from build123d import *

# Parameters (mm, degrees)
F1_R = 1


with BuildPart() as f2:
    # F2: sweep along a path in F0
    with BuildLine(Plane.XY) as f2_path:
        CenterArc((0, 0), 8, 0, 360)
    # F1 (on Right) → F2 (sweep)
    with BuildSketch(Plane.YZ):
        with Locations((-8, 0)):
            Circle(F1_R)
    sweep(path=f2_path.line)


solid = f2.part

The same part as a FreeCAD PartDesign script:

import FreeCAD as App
import Part
import Sketcher

V = App.Vector
Q = App.Units.Quantity

doc = App.newDocument("Part")
params = doc.addObject("Spreadsheet::Sheet", "Params")
for row, (alias, value) in enumerate([
    ("sketch1_diameter", "2 mm"),
    ("sketch2_diameter", "16 mm"),
], start=1):
    params.set(f"A{row}", alias)
    params.set(f"B{row}", "=" + value)
    params.setAlias(f"B{row}", alias)

body = doc.addObject("PartDesign::Body", "Body")

# Sketch on YZ plane
sketch1 = body.newObject("Sketcher::SketchObject", "Sketch")
sketch1.AttachmentSupport = (doc.getObject("YZ_Plane"), [""])
sketch1.MapMode = "FlatFace"
sketch1.addGeometry(Part.Circle(V(-8, 0, 0), V(0, 0, 1), 1), False)
sketch1.addConstraint([
    Sketcher.Constraint("PointOnObject", 0, 3, -1),
    Sketcher.Constraint("Diameter", 0, Q("2 mm")),
    Sketcher.Constraint("DistanceX", 0, 3, -1, 1, Q("8 mm")),
])
sketch1.setExpression("Constraints[1]", "Params.sketch1_diameter")

# Sketch on XY plane
sketch2 = body.newObject("Sketcher::SketchObject", "Sketch001")
sketch2.AttachmentSupport = (doc.getObject("XY_Plane"), [""])
sketch2.MapMode = "FlatFace"
sketch2.addGeometry(Part.Circle(V(0, 0, 0), V(0, 0, 1), 8), False)
sketch2.addConstraint([
    Sketcher.Constraint("Coincident", 0, 3, -1, 1),
    Sketcher.Constraint("Diameter", 0, Q("16 mm")),
])
sketch2.setExpression("Constraints[1]", "Params.sketch2_diameter")
doc.recompute()

additivepipe = body.newObject("PartDesign::AdditivePipe", "AdditivePipe")
additivepipe.Profile = sketch1
additivepipe.Spine = (sketch2, ["Edge1"])

doc.recompute()
